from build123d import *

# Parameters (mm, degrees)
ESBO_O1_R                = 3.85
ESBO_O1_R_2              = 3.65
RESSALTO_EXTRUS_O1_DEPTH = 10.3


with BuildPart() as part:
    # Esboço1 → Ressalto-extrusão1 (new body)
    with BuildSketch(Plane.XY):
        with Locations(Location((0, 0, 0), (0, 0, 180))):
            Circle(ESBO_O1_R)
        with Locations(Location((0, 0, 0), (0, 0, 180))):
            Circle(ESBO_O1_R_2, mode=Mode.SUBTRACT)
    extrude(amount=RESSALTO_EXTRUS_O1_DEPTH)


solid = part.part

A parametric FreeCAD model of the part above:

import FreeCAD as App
import Part
import Sketcher
from FreeCAD import Vector

doc = App.newDocument("Part")
body = doc.addObject("PartDesign::Body", "Body")

sketch1 = body.newObject("Sketcher::SketchObject", "Sketch")
sketch1.AttachmentSupport = (doc.getObject("XY_Plane"), [""])
sketch1.MapMode = "FlatFace"
sketch1.addGeometry([
    Part.Circle(Vector(0, 0, 0), Vector(0, 0, 1), 3.9),
    Part.Circle(Vector(0, 0, 0), Vector(0, 0, 1), 3.6),
], False)
sketch1.addConstraint([
    Sketcher.Constraint("Coincident", 0, 3, -1, 1),
    Sketcher.Constraint("Coincident", 1, 3, -1, 1),
    Sketcher.Constraint("Diameter", 0, 7.7),
    Sketcher.Constraint("Diameter", 1, 7.3),
])
pad1 = body.newObject("PartDesign::Pad", "Pad")
pad1.Profile = sketch1
pad1.Length = 10.3

doc.recompute()
